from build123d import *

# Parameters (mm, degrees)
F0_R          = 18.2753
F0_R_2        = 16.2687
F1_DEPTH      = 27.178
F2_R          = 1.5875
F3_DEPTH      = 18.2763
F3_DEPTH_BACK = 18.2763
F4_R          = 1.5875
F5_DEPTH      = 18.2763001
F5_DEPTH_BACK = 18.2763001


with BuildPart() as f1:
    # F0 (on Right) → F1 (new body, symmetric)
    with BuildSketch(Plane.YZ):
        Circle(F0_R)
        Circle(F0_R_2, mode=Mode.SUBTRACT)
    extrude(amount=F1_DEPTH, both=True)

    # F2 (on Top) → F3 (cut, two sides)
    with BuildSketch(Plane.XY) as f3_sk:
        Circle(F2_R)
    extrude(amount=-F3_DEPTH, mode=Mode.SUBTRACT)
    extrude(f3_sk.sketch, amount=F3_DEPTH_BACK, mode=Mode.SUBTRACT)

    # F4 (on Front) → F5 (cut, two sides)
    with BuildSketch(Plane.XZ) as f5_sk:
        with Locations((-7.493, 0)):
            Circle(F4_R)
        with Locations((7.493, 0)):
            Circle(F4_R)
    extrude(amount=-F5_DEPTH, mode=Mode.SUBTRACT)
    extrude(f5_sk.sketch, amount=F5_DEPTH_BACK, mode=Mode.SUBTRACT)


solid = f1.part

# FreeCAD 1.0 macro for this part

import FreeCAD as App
import Part
import Sketcher
from FreeCAD import Vector
Q = App.Units.Quantity

doc = App.newDocument("Part")
body = doc.addObject("PartDesign::Body", "Body")

# Sketch on YZ plane
sketch1 = body.newObject("Sketcher::SketchObject", "Sketch")
sketch1.AttachmentSupport = (doc.getObject("YZ_Plane"), [""])
sketch1.MapMode = "FlatFace"
sketch1.addGeometry(Part.Circle(Vector(0, 0, 0), Vector(0, 0, 1), 18), False)
sketch1.addGeometry(Part.Circle(Vector(0, 0, 0), Vector(0, 0, 1), 16), False)
sketch1.addConstraint(Sketcher.Constraint("Coincident", 0, 3, -1, 1))
sketch1.addConstraint(Sketcher.Constraint("Coincident", 1, 3, -1, 1))
sketch1.addConstraint(Sketcher.Constraint("Diameter", 0, Q("1.439 in")))
sketch1.addConstraint(Sketcher.Constraint("Diameter", 1, Q("1.281 in")))
pad1 = body.newObject("PartDesign::Pad", "Pad")
pad1.Profile = sketch1
pad1.Length = Q("2.14 in")
pad1.Midplane = True

# Sketch on XY plane
sketch2 = body.newObject("Sketcher::SketchObject", "Sketch001")
sketch2.AttachmentSupport = (doc.getObject("XY_Plane"), [""])
sketch2.MapMode = "FlatFace"
sketch2.addGeometry(Part.Circle(Vector(0, 0, 0), Vector(0, 0, 1), 1.6), False)
sketch2.addConstraint(Sketcher.Constraint("Coincident", 0, 3, -1, 1))
sketch2.addConstraint(Sketcher.Constraint("Diameter", 0, Q("0.125 in")))
pocket1 = body.newObject("PartDesign::Pocket", "Pocket")
pocket1.Profile = sketch2
pocket1.Type = "ThroughAll"
pocket1.Midplane = True

# Sketch on XZ plane
sketch3 = body.newObject("Sketcher::SketchObject", "Sketch002")
sketch3.AttachmentSupport = (doc.getObject("XZ_Plane"), [""])
sketch3.MapMode = "FlatFace"
sketch3.addGeometry(Part.Circle(Vector(-7.5, 0, 0), Vector(0, 0, 1), 1.6), False)
sketch3.addGeometry(Part.Circle(Vector(7.5, 0, 0), Vector(0, 0, 1), 1.6), False)
sketch3.addConstraint(Sketcher.Constraint("Equal", 0, 1))
sketch3.addConstraint(Sketcher.Constraint("Symmetric", 0, 3, 1, 3, -1, 1))
sketch3.addConstraint(Sketcher.Constraint("PointOnObject", 0, 3, -1))
sketch3.addConstraint(Sketcher.Constraint("Diameter", 0, Q("0.125 in")))
sketch3.addConstraint(Sketcher.Constraint("DistanceX", 0, 3, 1, 3, Q("0.59 in")))
pocket2 = body.newObject("PartDesign::Pocket", "Pocket001")
pocket2.Profile = sketch3
pocket2.Type = "ThroughAll"
pocket2.Midplane = True

doc.recompute()
